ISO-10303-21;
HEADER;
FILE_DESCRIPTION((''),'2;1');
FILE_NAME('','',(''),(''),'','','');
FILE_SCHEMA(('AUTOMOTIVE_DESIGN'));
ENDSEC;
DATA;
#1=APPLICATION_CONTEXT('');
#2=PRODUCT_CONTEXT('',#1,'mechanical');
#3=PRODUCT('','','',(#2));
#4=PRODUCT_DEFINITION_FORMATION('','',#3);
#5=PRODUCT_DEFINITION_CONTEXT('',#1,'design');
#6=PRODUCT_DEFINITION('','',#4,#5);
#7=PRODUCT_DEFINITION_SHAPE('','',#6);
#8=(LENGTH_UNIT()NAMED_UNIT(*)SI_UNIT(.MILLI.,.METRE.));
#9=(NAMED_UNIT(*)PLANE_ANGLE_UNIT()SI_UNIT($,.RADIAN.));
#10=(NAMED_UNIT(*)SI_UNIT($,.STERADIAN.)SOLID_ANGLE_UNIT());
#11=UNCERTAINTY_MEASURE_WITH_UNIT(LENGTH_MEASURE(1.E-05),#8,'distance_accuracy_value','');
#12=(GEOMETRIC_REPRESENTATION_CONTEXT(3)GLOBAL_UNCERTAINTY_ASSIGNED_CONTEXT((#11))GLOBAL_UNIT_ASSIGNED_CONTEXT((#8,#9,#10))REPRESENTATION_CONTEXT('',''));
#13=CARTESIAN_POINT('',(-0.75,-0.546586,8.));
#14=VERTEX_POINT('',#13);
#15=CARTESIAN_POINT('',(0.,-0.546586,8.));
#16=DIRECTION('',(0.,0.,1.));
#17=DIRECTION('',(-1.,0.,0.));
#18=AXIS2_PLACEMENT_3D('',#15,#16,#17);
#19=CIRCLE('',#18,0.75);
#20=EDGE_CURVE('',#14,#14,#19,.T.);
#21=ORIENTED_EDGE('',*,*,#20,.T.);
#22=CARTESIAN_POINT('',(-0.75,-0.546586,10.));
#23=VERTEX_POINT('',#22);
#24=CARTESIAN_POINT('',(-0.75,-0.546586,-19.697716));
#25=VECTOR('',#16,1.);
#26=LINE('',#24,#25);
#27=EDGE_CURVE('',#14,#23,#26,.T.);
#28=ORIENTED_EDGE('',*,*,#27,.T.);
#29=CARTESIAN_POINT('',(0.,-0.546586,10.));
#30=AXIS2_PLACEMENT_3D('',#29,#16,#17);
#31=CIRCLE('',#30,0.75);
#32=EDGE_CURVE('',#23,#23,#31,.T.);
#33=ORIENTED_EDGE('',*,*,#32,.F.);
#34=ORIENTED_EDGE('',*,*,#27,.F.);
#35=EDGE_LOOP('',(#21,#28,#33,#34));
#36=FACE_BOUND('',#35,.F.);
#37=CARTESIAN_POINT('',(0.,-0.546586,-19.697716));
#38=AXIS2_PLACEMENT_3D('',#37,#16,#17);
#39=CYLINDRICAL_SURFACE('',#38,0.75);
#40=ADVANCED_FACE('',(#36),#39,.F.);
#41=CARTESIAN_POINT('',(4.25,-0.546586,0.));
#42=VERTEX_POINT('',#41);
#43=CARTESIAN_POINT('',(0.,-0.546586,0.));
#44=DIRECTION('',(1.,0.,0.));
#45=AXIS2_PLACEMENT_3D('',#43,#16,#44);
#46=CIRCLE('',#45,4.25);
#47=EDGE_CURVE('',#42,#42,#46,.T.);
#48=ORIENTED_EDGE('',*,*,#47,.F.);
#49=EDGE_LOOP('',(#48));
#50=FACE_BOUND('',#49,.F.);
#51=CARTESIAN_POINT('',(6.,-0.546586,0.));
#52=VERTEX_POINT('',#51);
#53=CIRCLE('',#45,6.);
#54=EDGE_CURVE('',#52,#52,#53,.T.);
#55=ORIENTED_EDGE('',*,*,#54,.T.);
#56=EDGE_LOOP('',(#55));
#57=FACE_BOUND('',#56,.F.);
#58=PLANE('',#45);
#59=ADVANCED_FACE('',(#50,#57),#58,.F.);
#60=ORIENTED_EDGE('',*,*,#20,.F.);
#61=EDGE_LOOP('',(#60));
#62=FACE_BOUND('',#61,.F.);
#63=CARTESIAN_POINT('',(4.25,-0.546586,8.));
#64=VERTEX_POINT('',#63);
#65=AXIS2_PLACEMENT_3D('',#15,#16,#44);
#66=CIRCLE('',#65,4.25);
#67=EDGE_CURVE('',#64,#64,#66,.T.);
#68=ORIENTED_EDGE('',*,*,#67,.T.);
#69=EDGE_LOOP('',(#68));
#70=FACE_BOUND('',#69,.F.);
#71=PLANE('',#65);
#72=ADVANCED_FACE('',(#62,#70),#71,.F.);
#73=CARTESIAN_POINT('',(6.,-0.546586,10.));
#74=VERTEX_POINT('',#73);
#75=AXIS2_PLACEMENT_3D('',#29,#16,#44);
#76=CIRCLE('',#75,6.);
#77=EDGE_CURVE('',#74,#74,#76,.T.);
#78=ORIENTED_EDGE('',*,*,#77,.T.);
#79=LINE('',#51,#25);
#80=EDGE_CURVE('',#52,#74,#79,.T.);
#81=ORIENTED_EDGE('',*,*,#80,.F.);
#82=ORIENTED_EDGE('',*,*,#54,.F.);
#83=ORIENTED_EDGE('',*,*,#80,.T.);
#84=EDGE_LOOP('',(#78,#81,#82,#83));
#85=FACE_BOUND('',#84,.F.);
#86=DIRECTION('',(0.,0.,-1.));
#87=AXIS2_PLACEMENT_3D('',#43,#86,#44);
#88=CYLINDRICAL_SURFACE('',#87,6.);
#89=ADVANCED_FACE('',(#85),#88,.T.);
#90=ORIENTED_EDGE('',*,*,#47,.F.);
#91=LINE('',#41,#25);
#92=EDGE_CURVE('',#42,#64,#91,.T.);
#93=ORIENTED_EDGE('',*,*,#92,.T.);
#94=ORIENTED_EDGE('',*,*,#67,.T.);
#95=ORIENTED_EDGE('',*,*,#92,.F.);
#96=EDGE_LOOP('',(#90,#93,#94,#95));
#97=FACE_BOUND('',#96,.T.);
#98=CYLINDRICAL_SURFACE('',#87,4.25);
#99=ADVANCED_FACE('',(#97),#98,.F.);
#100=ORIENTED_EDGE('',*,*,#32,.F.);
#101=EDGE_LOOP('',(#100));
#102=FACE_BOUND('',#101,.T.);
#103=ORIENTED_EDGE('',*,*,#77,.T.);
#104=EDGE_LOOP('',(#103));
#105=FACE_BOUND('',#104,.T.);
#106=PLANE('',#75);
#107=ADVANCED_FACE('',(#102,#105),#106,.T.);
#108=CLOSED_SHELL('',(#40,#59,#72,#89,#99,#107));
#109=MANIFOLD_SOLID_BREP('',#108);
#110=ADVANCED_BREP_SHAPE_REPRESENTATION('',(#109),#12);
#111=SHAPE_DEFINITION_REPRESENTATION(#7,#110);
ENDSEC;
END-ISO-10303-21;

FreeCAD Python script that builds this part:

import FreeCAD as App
import Part
import Sketcher
from FreeCAD import Vector

doc = App.newDocument("Part")
body = doc.addObject("PartDesign::Body", "Body")

sketch1 = doc.addObject("Sketcher::SketchObject", "Sketch")
body.addObject(sketch1)
sketch1.AttachmentSupport = (doc.XY_Plane, [""])
sketch1.MapMode = "FlatFace"
sketch1.addGeometry(Part.Circle(Vector(0, -1, 0), Vector(0, 0, 1), 6), False)
sketch1.addConstraint(Sketcher.Constraint("PointOnObject", 0, 3, -2))
sketch1.addConstraint(Sketcher.Constraint("Diameter", 0, 12.0))
sketch1.addConstraint(Sketcher.Constraint("DistanceY", 0, 3, -1, 1, 0.546586))
pad1 = doc.addObject("PartDesign::Pad", "Pad")
body.addObject(pad1)
pad1.Profile = sketch1
pad1.Length = 10

sketch2 = doc.addObject("Sketcher::SketchObject", "Sketch001")
body.addObject(sketch2)
sketch2.AttachmentSupport = (doc.XY_Plane, [""])
sketch2.MapMode = "FlatFace"
sketch2.addGeometry(Part.Circle(Vector(0, -0.5, 0), Vector(0, 0, 1), 4.2), False)
sketch2.addConstraint(Sketcher.Constraint("PointOnObject", 0, 3, -2))
sketch2.addConstraint(Sketcher.Constraint("Diameter", 0, 8.5))
sketch2.addConstraint(Sketcher.Constraint("DistanceY", 0, 3, -1, 1, 0.546586))
pocket1 = doc.addObject("PartDesign::Pocket", "Pocket")
body.addObject(pocket1)
pocket1.Profile = sketch2
pocket1.Length = 8
pocket1.Reversed = True

sketch3 = doc.addObject("Sketcher::SketchObject", "Sketch002")
body.addObject(sketch3)
sketch3.AttachmentSupport = (doc.XY_Plane, [""])
sketch3.MapMode = "FlatFace"
sketch3.addGeometry(Part.Circle(Vector(0, -0.5, 0), Vector(0, 0, 1), 0.8), False)
sketch3.addConstraint(Sketcher.Constraint("PointOnObject", 0, 3, -2))
sketch3.addConstraint(Sketcher.Constraint("Diameter", 0, 1.5))
sketch3.addConstraint(Sketcher.Constraint("DistanceY", 0, 3, -1, 1, 0.546586))
doc.recompute()
hole = doc.addObject("PartDesign::Hole", "Hole")
body.addObject(hole)
hole.Profile = sketch3
hole.ThreadType = "None"
hole.Diameter = 1.5
hole.DepthType = "ThroughAll"
hole.Reversed = True

doc.recompute()
